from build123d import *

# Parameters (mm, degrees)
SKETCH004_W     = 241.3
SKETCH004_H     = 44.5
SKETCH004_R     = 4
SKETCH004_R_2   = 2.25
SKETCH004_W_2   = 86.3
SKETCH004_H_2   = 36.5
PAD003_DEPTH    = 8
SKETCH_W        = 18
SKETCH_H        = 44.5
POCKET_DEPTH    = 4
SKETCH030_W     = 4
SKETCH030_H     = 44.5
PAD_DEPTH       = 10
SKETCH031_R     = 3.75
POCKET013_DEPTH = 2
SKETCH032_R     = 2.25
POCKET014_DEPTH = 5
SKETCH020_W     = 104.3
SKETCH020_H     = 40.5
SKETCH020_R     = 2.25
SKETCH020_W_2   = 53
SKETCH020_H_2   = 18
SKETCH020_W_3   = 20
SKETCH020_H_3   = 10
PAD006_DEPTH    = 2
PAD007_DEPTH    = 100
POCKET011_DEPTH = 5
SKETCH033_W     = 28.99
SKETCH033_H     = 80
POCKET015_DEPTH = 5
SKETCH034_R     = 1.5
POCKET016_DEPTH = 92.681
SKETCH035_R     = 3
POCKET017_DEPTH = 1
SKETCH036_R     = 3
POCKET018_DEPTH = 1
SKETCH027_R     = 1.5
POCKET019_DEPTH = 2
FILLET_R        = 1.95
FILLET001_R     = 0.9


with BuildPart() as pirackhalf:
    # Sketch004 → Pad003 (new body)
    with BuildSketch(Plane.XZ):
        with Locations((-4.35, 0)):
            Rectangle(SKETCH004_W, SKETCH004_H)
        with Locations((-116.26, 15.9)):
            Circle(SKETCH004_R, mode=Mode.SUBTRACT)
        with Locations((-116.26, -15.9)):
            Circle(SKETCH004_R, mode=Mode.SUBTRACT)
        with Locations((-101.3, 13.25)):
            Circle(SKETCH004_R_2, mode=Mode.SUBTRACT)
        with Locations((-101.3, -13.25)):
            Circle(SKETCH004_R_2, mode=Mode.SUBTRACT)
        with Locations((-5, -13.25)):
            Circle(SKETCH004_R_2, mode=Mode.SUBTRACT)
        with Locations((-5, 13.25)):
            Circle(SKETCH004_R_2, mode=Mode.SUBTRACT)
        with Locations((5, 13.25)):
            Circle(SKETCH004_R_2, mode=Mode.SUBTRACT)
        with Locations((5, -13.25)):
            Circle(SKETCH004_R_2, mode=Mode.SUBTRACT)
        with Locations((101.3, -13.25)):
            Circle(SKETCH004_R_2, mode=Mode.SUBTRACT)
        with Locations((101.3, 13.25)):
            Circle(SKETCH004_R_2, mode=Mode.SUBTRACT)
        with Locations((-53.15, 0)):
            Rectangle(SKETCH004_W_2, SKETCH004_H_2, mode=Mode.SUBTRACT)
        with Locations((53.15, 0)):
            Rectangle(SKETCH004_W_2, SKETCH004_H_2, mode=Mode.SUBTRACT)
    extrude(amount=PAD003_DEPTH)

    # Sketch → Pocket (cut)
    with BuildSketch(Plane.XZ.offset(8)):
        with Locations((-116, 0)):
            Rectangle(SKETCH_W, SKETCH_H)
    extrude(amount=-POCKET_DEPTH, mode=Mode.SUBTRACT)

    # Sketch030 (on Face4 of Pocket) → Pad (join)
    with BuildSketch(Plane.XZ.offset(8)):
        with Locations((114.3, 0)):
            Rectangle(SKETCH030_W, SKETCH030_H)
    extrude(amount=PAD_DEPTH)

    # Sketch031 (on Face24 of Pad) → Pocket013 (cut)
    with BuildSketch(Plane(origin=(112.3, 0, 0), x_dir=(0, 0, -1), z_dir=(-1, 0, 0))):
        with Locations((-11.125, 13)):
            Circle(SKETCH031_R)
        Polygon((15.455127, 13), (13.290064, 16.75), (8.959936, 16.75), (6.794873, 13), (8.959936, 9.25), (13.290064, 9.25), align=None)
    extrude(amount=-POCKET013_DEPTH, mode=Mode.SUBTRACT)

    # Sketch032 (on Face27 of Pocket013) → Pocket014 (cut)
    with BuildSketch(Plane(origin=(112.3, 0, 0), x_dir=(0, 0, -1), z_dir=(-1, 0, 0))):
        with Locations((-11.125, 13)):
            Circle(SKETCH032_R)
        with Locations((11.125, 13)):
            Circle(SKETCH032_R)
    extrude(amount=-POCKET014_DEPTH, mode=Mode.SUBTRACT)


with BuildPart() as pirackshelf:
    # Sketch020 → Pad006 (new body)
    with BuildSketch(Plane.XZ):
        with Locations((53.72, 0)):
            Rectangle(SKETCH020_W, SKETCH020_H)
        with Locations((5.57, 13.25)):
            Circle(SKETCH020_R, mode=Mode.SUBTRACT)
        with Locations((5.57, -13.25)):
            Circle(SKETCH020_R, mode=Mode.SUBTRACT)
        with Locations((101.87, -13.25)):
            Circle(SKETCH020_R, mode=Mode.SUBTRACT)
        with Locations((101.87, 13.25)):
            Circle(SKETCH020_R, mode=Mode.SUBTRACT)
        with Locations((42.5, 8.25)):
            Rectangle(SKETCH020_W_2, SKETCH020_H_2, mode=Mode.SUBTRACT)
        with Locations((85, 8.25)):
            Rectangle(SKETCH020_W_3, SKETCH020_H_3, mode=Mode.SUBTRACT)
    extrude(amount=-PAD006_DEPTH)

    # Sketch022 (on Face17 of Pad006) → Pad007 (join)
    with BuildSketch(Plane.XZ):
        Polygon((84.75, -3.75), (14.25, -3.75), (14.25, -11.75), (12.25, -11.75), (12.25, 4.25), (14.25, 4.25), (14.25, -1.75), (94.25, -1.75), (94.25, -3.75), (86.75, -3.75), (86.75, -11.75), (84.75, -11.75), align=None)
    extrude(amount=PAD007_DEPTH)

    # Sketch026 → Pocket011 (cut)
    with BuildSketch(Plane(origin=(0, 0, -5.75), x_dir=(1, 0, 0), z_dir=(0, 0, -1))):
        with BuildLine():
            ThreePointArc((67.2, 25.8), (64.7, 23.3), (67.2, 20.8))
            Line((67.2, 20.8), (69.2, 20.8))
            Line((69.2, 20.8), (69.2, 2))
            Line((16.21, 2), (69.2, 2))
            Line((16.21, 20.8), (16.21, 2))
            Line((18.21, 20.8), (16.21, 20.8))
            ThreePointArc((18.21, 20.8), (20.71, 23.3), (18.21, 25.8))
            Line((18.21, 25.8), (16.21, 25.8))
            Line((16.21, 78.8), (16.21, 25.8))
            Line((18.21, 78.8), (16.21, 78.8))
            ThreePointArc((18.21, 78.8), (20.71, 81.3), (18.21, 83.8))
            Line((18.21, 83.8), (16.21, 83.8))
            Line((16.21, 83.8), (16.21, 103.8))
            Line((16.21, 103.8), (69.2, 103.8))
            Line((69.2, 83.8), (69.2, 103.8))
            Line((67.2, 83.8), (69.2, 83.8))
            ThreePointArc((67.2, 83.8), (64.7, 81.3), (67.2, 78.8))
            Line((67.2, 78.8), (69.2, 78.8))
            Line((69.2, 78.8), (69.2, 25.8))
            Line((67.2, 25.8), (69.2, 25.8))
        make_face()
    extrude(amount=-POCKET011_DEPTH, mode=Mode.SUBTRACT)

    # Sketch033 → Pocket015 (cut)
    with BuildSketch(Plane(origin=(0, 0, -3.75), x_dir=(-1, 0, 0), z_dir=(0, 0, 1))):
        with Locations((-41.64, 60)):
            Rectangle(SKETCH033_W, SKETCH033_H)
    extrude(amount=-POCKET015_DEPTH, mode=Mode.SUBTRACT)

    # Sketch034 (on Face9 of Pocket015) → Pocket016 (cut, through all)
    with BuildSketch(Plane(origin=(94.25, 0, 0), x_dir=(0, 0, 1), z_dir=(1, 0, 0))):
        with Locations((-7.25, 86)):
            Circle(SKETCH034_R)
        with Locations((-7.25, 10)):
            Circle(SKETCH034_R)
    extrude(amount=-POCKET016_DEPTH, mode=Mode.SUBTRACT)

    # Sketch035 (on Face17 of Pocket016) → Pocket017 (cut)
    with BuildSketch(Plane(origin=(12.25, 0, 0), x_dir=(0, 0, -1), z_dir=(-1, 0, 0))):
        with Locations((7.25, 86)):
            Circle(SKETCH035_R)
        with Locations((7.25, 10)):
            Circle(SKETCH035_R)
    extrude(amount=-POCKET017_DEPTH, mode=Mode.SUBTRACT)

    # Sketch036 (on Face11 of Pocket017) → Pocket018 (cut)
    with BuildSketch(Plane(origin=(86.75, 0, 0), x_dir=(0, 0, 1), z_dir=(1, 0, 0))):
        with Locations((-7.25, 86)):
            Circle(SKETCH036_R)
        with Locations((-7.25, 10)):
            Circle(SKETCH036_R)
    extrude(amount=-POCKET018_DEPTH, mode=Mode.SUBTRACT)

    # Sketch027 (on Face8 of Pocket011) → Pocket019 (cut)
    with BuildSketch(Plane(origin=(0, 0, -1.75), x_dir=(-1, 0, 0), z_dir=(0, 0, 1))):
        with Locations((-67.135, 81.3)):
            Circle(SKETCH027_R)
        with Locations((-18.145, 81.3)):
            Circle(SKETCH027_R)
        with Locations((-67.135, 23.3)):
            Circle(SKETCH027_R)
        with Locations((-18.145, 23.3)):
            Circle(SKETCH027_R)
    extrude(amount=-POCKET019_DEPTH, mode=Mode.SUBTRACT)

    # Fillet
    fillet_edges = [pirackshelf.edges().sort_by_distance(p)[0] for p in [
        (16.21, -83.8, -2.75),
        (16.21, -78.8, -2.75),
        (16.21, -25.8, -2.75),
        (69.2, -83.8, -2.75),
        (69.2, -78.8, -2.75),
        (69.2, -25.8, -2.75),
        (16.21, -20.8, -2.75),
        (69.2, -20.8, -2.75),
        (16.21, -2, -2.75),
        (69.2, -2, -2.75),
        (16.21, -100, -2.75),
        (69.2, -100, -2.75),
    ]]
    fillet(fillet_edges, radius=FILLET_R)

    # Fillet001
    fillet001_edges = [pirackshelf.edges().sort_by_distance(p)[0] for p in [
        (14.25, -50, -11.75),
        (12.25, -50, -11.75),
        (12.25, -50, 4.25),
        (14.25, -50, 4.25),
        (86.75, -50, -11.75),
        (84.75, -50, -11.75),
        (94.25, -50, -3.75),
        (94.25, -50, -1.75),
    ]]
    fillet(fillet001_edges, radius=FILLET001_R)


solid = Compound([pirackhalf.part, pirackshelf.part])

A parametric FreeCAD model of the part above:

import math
import FreeCAD as App
import Part
import Sketcher
from FreeCAD import Vector
Q = App.Units.Quantity


def edges_at(feature, points):
    """Names of the edges that pass closest to the given points."""
    edges = feature.Shape.Edges
    near = lambda p: min(range(len(edges)), key=lambda i: edges[i].distToShape(Part.Vertex(*p))[0])
    return sorted({f"Edge{near(p) + 1}" for p in points})


def add_polygon(sketch, points):
    """Adds a closed chain of lines whose ends are joined by coincident constraints."""
    first, n = sketch.GeometryCount, len(points)
    for a, b in zip(points, points[1:] + points[:1]):
        sketch.addGeometry(Part.LineSegment(App.Vector(*a, 0), App.Vector(*b, 0)), False)
    for i in range(n):
        sketch.addConstraint(Sketcher.Constraint("Coincident", first + i, 2, first + (i + 1) % n, 1))

doc = App.newDocument("Part")
body = doc.addObject("PartDesign::Body", "Body")

sketch1 = body.newObject("Sketcher::SketchObject", "Sketch")
sketch1.AttachmentSupport = (doc.getObject("XZ_Plane"), [""])
sketch1.MapMode = "FlatFace"
add_polygon(sketch1, [(-125, 22.2), (-125, -22.2), (116.3, -22.2), (116.3, 22.2)])
sketch1.addGeometry(Part.Circle(Vector(-116.3, -15.9, 0), Vector(0, 0, 1), 4), False)
sketch1.addGeometry(Part.Circle(Vector(-101.3, -13.2, 0), Vector(0, 0, 1), 2.2), False)
sketch1.addGeometry(Part.Circle(Vector(-5, -13.2, 0), Vector(0, 0, 1), 2.2), False)
sketch1.addGeometry(Part.Circle(Vector(5, -13.2, 0), Vector(0, 0, 1), 2.2), False)
sketch1.addGeometry(Part.Circle(Vector(101.3, -13.2, 0), Vector(0, 0, 1), 2.2), False)
add_polygon(sketch1, [(-10, -18.2), (-96.3, -18.2), (-96.3, 18.2), (-10, 18.2)])
sketch1.addGeometry(Part.Circle(Vector(-101.3, 13.2, 0), Vector(0, 0, 1), 2.2), False)
sketch1.addGeometry(Part.Circle(Vector(-116.3, 15.9, 0), Vector(0, 0, 1), 4), False)
add_polygon(sketch1, [(96.3, -18.2), (10, -18.2), (10, 18.2), (96.3, 18.2)])
sketch1.addGeometry(Part.Circle(Vector(-5, 13.2, 0), Vector(0, 0, 1), 2.2), False)
sketch1.addGeometry(Part.Circle(Vector(5, 13.2, 0), Vector(0, 0, 1), 2.2), False)
sketch1.addGeometry(Part.Circle(Vector(101.3, 13.2, 0), Vector(0, 0, 1), 2.2), False)
sketch1.addConstraint(Sketcher.Constraint("Vertical", 0))
sketch1.addConstraint(Sketcher.Constraint("Horizontal", 1))
sketch1.addConstraint(Sketcher.Constraint("Vertical", 2))
sketch1.addConstraint(Sketcher.Constraint("Horizontal", 3))
sketch1.addConstraint(Sketcher.Constraint("Horizontal", 9))
sketch1.addConstraint(Sketcher.Constraint("Vertical", 10))
sketch1.addConstraint(Sketcher.Constraint("Horizontal", 11))
sketch1.addConstraint(Sketcher.Constraint("Vertical", 12))
sketch1.addConstraint(Sketcher.Constraint("Horizontal", 15))
sketch1.addConstraint(Sketcher.Constraint("Vertical", 16))
sketch1.addConstraint(Sketcher.Constraint("Horizontal", 17))
sketch1.addConstraint(Sketcher.Constraint("Vertical", 18))
sketch1.addConstraint(Sketcher.Constraint("Equal", 5, 6))
sketch1.addConstraint(Sketcher.Constraint("Equal", 6, 7))
sketch1.addConstraint(Sketcher.Constraint("Equal", 7, 8))
sketch1.addConstraint(Sketcher.Constraint("Equal", 8, 13))
sketch1.addConstraint(Sketcher.Constraint("Equal", 4, 14))
sketch1.addConstraint(Sketcher.Constraint("Equal", 13, 19))
sketch1.addConstraint(Sketcher.Constraint("Equal", 19, 20))
sketch1.addConstraint(Sketcher.Constraint("Equal", 20, 21))
sketch1.addConstraint(Sketcher.Constraint("Symmetric", 8, 3, 13, 3, -1, 1))
sketch1.addConstraint(Sketcher.Constraint("Symmetric", 7, 3, 19, 3, -1, 1))
sketch1.addConstraint(Sketcher.Constraint("Symmetric", 6, 3, 20, 3, -1, 1))
sketch1.addConstraint(Sketcher.Constraint("Symmetric", 5, 3, 21, 3, -1, 1))
sketch1.addConstraint(Sketcher.Constraint("Symmetric", 11, 2, 15, 2, -1, 1))
sketch1.addConstraint(Sketcher.Constraint("Symmetric", 9, 2, 17, 2, -1, 1))
sketch1.addConstraint(Sketcher.Constraint("Symmetric", 6, 3, 7, 3, -2))
sketch1.addConstraint(Sketcher.Constraint("Symmetric", 5, 3, 8, 3, -2))
sketch1.addConstraint(Sketcher.Constraint("Symmetric", 4, 3, 14, 3, -1))
sketch1.addConstraint(Sketcher.Constraint("Horizontal", 5, 3, 6, 3))
sketch1.addConstraint(Sketcher.Constraint("Horizontal", 12, 2, 15, 2))
sketch1.addConstraint(Sketcher.Constraint("Diameter", 4, 8.0))
sketch1.addConstraint(Sketcher.Constraint("Diameter", 5, 4.5))
sketch1.addConstraint(Sketcher.Constraint("DistanceX", 1, 1, 1, 2, 241.3))
sketch1.addConstraint(Sketcher.Constraint("DistanceX", 9, 2, 9, 1, 86.3))
sketch1.addConstraint(Sketcher.Constraint("DistanceY", 0, 2, 0, 1, 44.5))
sketch1.addConstraint(Sketcher.Constraint("DistanceY", 10, 1, 10, 2, 36.5))
sketch1.addConstraint(Sketcher.Constraint("DistanceX", 6, 3, -1, 1, 5.0))
sketch1.addConstraint(Sketcher.Constraint("DistanceX", 0, 2, -1, 1, 125.0))
sketch1.addConstraint(Sketcher.Constraint("DistanceX", 11, 2, -1, 1, 10.0))
sketch1.addConstraint(Sketcher.Constraint("DistanceY", 0, 2, 5, 3, 9.0))
sketch1.addConstraint(Sketcher.Constraint("DistanceX", 8, 3, 1, 2, 15.0))
sketch1.addConstraint(Sketcher.Constraint("DistanceY", 21, 3, 2, 2, 9.0))
sketch1.addConstraint(Sketcher.Constraint("DistanceY", 4, 3, -1, 1, 15.9))
sketch1.addConstraint(Sketcher.Constraint("DistanceX", 4, 3, -1, 1, 116.26))
pad1 = body.newObject("PartDesign::Pad", "Pad")
pad1.Profile = sketch1
pad1.Length = 8

sketch2 = body.newObject("Sketcher::SketchObject", "Sketch001")
sketch2.AttachmentSupport = (doc.getObject("XZ_Plane"), [""])
sketch2.MapMode = "FlatFace"
sketch2.AttachmentOffset = App.Placement(Vector(0, 0, 8), App.Rotation())
add_polygon(sketch2, [(-125, 22), (-125, -22), (-107, -22), (-107, 22)])
sketch2.addConstraint(Sketcher.Constraint("Vertical", 0))
sketch2.addConstraint(Sketcher.Constraint("Horizontal", 1))
sketch2.addConstraint(Sketcher.Constraint("Vertical", 2))
sketch2.addConstraint(Sketcher.Constraint("Horizontal", 3))
sketch2.addConstraint(Sketcher.Constraint("DistanceX", 1, 1, 1, 2, 18.0))
sketch2.addConstraint(Sketcher.Constraint("DistanceY", 0, 2, 0, 1, 44.5))
sketch2.addConstraint(Sketcher.Constraint("DistanceX", 0, 2, -1, 1, 125.0))
sketch2.addConstraint(Sketcher.Constraint("DistanceY", 0, 2, -1, 1, 22.25))
pocket1 = body.newObject("PartDesign::Pocket", "Pocket")
pocket1.Profile = sketch2
pocket1.Length = 4

sketch3 = body.newObject("Sketcher::SketchObject", "Sketch002")
sketch3.AttachmentSupport = (doc.getObject("XZ_Plane"), [""])
sketch3.MapMode = "FlatFace"
sketch3.AttachmentOffset = App.Placement(Vector(0, 0, 8), App.Rotation())
add_polygon(sketch3, [(112.3, 22.2), (112.3, -22.2), (116.3, -22.2), (116.3, 22.2)])
sketch3.addConstraint(Sketcher.Constraint("Vertical", 0))
sketch3.addConstraint(Sketcher.Constraint("Horizontal", 1))
sketch3.addConstraint(Sketcher.Constraint("Vertical", 2))
sketch3.addConstraint(Sketcher.Constraint("Horizontal", 3))
sketch3.addConstraint(Sketcher.Constraint("DistanceX", 1, 1, 1, 2, 4.0))
sketch3.addConstraint(Sketcher.Constraint("DistanceY", 0, 2, 0, 1, 44.5))
sketch3.addConstraint(Sketcher.Constraint("DistanceX", -1, 1, 0, 2, 112.3))
sketch3.addConstraint(Sketcher.Constraint("DistanceY", 0, 2, -1, 1, 22.25))
pad2 = body.newObject("PartDesign::Pad", "Pad001")
pad2.Profile = sketch3
pad2.Length = 10

sketch4 = body.newObject("Sketcher::SketchObject", "Sketch003")
sketch4.AttachmentSupport = (doc.getObject("YZ_Plane"), [""])
sketch4.MapMode = "FlatFace"
sketch4.AttachmentOffset = App.Placement(Vector(0, 0, 112.3), App.Rotation())
sketch4.addGeometry(Part.Circle(Vector(-13, 11.1, 0), Vector(0, 0, 1), 3.8), False)
add_polygon(sketch4, [(-13, -15.5), (-16.8, -13.3), (-16.8, -9), (-13, -6.8), (-9.2, -9), (-9.2, -13.3)])
sketch4.addConstraint(Sketcher.Constraint("Vertical", 2))
sketch4.addConstraint(Sketcher.Constraint("Vertical", 5))
sketch4.addConstraint(Sketcher.Constraint("Parallel", 1, 4))
sketch4.addConstraint(Sketcher.Constraint("Parallel", 3, 6))
sketch4.addConstraint(Sketcher.Constraint("Horizontal", 2, 2, 4, 2))
sketch4.addConstraint(Sketcher.Constraint("Horizontal", 1, 2, 5, 2))
sketch4.addConstraint(Sketcher.Constraint("Vertical", 0, 3, 3, 2))
sketch4.addConstraint(Sketcher.Constraint("Vertical", 3, 2, 6, 2))
sketch4.addConstraint(Sketcher.Constraint("Diameter", 0, 7.5))
sketch4.addConstraint(Sketcher.Constraint("Angle", 1, Q("150.000006 deg")))
sketch4.addConstraint(Sketcher.Constraint("DistanceX", 0, 3, -1, 1, 13.0))
sketch4.addConstraint(Sketcher.Constraint("DistanceX", 2, 2, 4, 2, 7.5))
sketch4.addConstraint(Sketcher.Constraint("DistanceY", -1, 1, 0, 3, 11.125))
sketch4.addConstraint(Sketcher.Constraint("DistanceY", 2, 1, 2, 2, 4.330128))
sketch4.addConstraint(Sketcher.Constraint("DistanceY", 1, 2, -1, 1, 13.290064))
pocket2 = body.newObject("PartDesign::Pocket", "Pocket001")
pocket2.Profile = sketch4
pocket2.Length = 2
pocket2.Reversed = True

sketch5 = body.newObject("Sketcher::SketchObject", "Sketch004")
sketch5.AttachmentSupport = (doc.getObject("YZ_Plane"), [""])
sketch5.MapMode = "FlatFace"
sketch5.AttachmentOffset = App.Placement(Vector(0, 0, 112.3), App.Rotation())
sketch5.addGeometry(Part.Circle(Vector(-13, 11.1, 0), Vector(0, 0, 1), 2.2), False)
sketch5.addGeometry(Part.Circle(Vector(-13, -11.1, 0), Vector(0, 0, 1), 2.2), False)
sketch5.addConstraint(Sketcher.Constraint("Equal", 0, 1))
sketch5.addConstraint(Sketcher.Constraint("Symmetric", 0, 3, 1, 3, -1))
sketch5.addConstraint(Sketcher.Constraint("Diameter", 0, 4.5))
sketch5.addConstraint(Sketcher.Constraint("DistanceX", 0, 3, -1, 1, 13.0))
sketch5.addConstraint(Sketcher.Constraint("DistanceY", 1, 3, 0, 3, 22.25))
pocket3 = body.newObject("PartDesign::Pocket", "Pocket002")
pocket3.Profile = sketch5
pocket3.Length = 5
pocket3.Reversed = True
body2 = doc.addObject("PartDesign::Body", "Body001")

sketch6 = body2.newObject("Sketcher::SketchObject", "Sketch005")
sketch6.AttachmentSupport = (doc.getObject("XZ_Plane001"), [""])
sketch6.MapMode = "FlatFace"
add_polygon(sketch6, [(1.6, 20.2), (1.6, -20.2), (105.9, -20.2), (105.9, 20.2)])
sketch6.addGeometry(Part.Circle(Vector(5.6, -13.2, 0), Vector(0, 0, 1), 2.2), False)
sketch6.addGeometry(Part.Circle(Vector(101.9, -13.2, 0), Vector(0, 0, 1), 2.2), False)
add_polygon(sketch6, [(69, -0.8), (16, -0.8), (16, 17.2), (69, 17.2)])
sketch6.addGeometry(Part.Circle(Vector(5.6, 13.2, 0), Vector(0, 0, 1), 2.2), False)
add_polygon(sketch6, [(95, 3.2), (75, 3.2), (75, 13.2), (95, 13.2)])
sketch6.addGeometry(Part.Circle(Vector(101.9, 13.2, 0), Vector(0, 0, 1), 2.2), False)
sketch6.addConstraint(Sketcher.Constraint("Vertical", 0))
sketch6.addConstraint(Sketcher.Constraint("Horizontal", 1))
sketch6.addConstraint(Sketcher.Constraint("Vertical", 2))
sketch6.addConstraint(Sketcher.Constraint("Horizontal", 3))
sketch6.addConstraint(Sketcher.Constraint("Horizontal", 6))
sketch6.addConstraint(Sketcher.Constraint("Vertical", 7))
sketch6.addConstraint(Sketcher.Constraint("Horizontal", 8))
sketch6.addConstraint(Sketcher.Constraint("Vertical", 9))
sketch6.addConstraint(Sketcher.Constraint("Horizontal", 11))
sketch6.addConstraint(Sketcher.Constraint("Vertical", 12))
sketch6.addConstraint(Sketcher.Constraint("Horizontal", 13))
sketch6.addConstraint(Sketcher.Constraint("Vertical", 14))
sketch6.addConstraint(Sketcher.Constraint("Equal", 4, 5))
sketch6.addConstraint(Sketcher.Constraint("Equal", 5, 10))
sketch6.addConstraint(Sketcher.Constraint("Equal", 10, 15))
sketch6.addConstraint(Sketcher.Constraint("Symmetric", 4, 3, 10, 3, -1))
sketch6.addConstraint(Sketcher.Constraint("Symmetric", 5, 3, 15, 3, -1))
sketch6.addConstraint(Sketcher.Constraint("Horizontal", 4, 3, 5, 3))
sketch6.addConstraint(Sketcher.Constraint("Horizontal", 15, 3, 12, 2))
sketch6.addConstraint(Sketcher.Constraint("Diameter", 4, 4.5))
sketch6.addConstraint(Sketcher.Constraint("DistanceX", 6, 2, 6, 1, 53.0))
sketch6.addConstraint(Sketcher.Constraint("DistanceX", 11, 2, 11, 1, 20.0))
sketch6.addConstraint(Sketcher.Constraint("DistanceY", 7, 1, 7, 2, 18.0))
sketch6.addConstraint(Sketcher.Constraint("DistanceY", 12, 1, 12, 2, 10.0))
sketch6.addConstraint(Sketcher.Constraint("DistanceX", 1, 1, 1, 2, 104.3))
sketch6.addConstraint(Sketcher.Constraint("DistanceY", 0, 2, 0, 1, 40.5))
sketch6.addConstraint(Sketcher.Constraint("DistanceX", -1, 1, 6, 2, 16.0))
sketch6.addConstraint(Sketcher.Constraint("DistanceX", -1, 1, 11, 2, 75.0))
sketch6.addConstraint(Sketcher.Constraint("DistanceX", 0, 2, 4, 3, 4.0))
sketch6.addConstraint(Sketcher.Constraint("DistanceY", 0, 2, 4, 3, 7.0))
sketch6.addConstraint(Sketcher.Constraint("DistanceX", 5, 3, 1, 2, 4.0))
sketch6.addConstraint(Sketcher.Constraint("DistanceY", 15, 3, 2, 2, 7.0))
sketch6.addConstraint(Sketcher.Constraint("DistanceY", 6, 2, 10, 3, 14.0))
sketch6.addConstraint(Sketcher.Constraint("DistanceX", -1, 1, 4, 3, 5.57))
pad3 = body2.newObject("PartDesign::Pad", "Pad002")
pad3.Profile = sketch6
pad3.Length = 2
pad3.Reversed = True

sketch7 = body2.newObject("Sketcher::SketchObject", "Sketch006")
sketch7.AttachmentSupport = (doc.getObject("XZ_Plane001"), [""])
sketch7.MapMode = "FlatFace"
add_polygon(sketch7, [(14.2, -3.8), (84.8, -3.8), (84.8, -11.8), (86.8, -11.8), (86.8, -3.8), (94.2, -3.8), (94.2, -1.8), (14.2, -1.8), (14.2, 4.2), (12.2, 4.2), (12.2, -11.8), (14.2, -11.8)])
sketch7.addConstraint(Sketcher.Constraint("Horizontal", 0))
sketch7.addConstraint(Sketcher.Constraint("Vertical", 1))
sketch7.addConstraint(Sketcher.Constraint("Horizontal", 2))
sketch7.addConstraint(Sketcher.Constraint("Vertical", 3))
sketch7.addConstraint(Sketcher.Constraint("Horizontal", 4))
sketch7.addConstraint(Sketcher.Constraint("Vertical", 5))
sketch7.addConstraint(Sketcher.Constraint("Horizontal", 6))
sketch7.addConstraint(Sketcher.Constraint("Vertical", 7))
sketch7.addConstraint(Sketcher.Constraint("Horizontal", 8))
sketch7.addConstraint(Sketcher.Constraint("Vertical", 9))
sketch7.addConstraint(Sketcher.Constraint("Horizontal", 10))
sketch7.addConstraint(Sketcher.Constraint("Vertical", 11))
sketch7.addConstraint(Sketcher.Constraint("Horizontal", 0, 2, 3, 2))
sketch7.addConstraint(Sketcher.Constraint("Horizontal", 2, 2, 9, 2))
sketch7.addConstraint(Sketcher.Constraint("Vertical", 7, 2, 10, 2))
sketch7.addConstraint(Sketcher.Constraint("Equal", 2, 8))
sketch7.addConstraint(Sketcher.Constraint("Equal", 10, 5))
sketch7.addConstraint(Sketcher.Constraint("DistanceX", 2, 1, 2, 2, 2.0))
sketch7.addConstraint(Sketcher.Constraint("DistanceX", 6, 2, 6, 1, 80.0))
sketch7.addConstraint(Sketcher.Constraint("DistanceY", 1, 2, 1, 1, 8.0))
sketch7.addConstraint(Sketcher.Constraint("DistanceY", 7, 1, 7, 2, 6.0))
sketch7.addConstraint(Sketcher.Constraint("DistanceX", 0, 1, 0, 2, 70.5))
sketch7.addConstraint(Sketcher.Constraint("DistanceX", -1, 1, 0, 2, 84.75))
sketch7.addConstraint(Sketcher.Constraint("DistanceY", 0, 2, -1, 1, 3.75))
pad4 = body2.newObject("PartDesign::Pad", "Pad003")
pad4.Profile = sketch7
pad4.Length = 100

sketch8 = body2.newObject("Sketcher::SketchObject", "Sketch007")
sketch8.AttachmentSupport = (doc.getObject("XY_Plane001"), [""])
sketch8.MapMode = "FlatFace"
sketch8.AttachmentOffset = App.Placement(Vector(0, 0, -5.75), App.Rotation())
sketch8.addGeometry(Part.ArcOfCircle(Part.Circle(Vector(67.2, -23.3, 0), Vector(0, 0, 1), 2.5), math.radians(90), math.radians(270)), False)
sketch8.addGeometry(Part.LineSegment(Vector(67.2, -25.8, 0), Vector(69.2, -25.8, 0)), False)
sketch8.addGeometry(Part.LineSegment(Vector(69.2, -25.8, 0), Vector(69.2, -78.8, 0)), False)
sketch8.addGeometry(Part.LineSegment(Vector(69.2, -78.8, 0), Vector(67.2, -78.8, 0)), False)
sketch8.addGeometry(Part.ArcOfCircle(Part.Circle(Vector(67.2, -81.3, 0), Vector(0, 0, 1), 2.5), math.radians(90), math.radians(270)), False)
sketch8.addGeometry(Part.LineSegment(Vector(67.2, -83.8, 0), Vector(69.2, -83.8, 0)), False)
sketch8.addGeometry(Part.LineSegment(Vector(69.2, -83.8, 0), Vector(69.2, -103.8, 0)), False)
sketch8.addGeometry(Part.LineSegment(Vector(69.2, -103.8, 0), Vector(16.2, -103.8, 0)), False)
sketch8.addGeometry(Part.LineSegment(Vector(16.2, -103.8, 0), Vector(16.2, -83.8, 0)), False)
sketch8.addGeometry(Part.LineSegment(Vector(16.2, -83.8, 0), Vector(18.2, -83.8, 0)), False)
sketch8.addGeometry(Part.ArcOfCircle(Part.Circle(Vector(18.2, -81.3, 0), Vector(0, 0, 1), 2.5), math.radians(-90), math.radians(90)), False)
sketch8.addGeometry(Part.LineSegment(Vector(18.2, -78.8, 0), Vector(16.2, -78.8, 0)), False)
sketch8.addGeometry(Part.LineSegment(Vector(16.2, -78.8, 0), Vector(16.2, -25.8, 0)), False)
sketch8.addGeometry(Part.LineSegment(Vector(16.2, -25.8, 0), Vector(18.2, -25.8, 0)), False)
sketch8.addGeometry(Part.ArcOfCircle(Part.Circle(Vector(18.2, -23.3, 0), Vector(0, 0, 1), 2.5), math.radians(-90), math.radians(90)), False)
sketch8.addGeometry(Part.LineSegment(Vector(18.2, -20.8, 0), Vector(16.2, -20.8, 0)), False)
sketch8.addGeometry(Part.LineSegment(Vector(16.2, -20.8, 0), Vector(16.2, -2, 0)), False)
sketch8.addGeometry(Part.LineSegment(Vector(16.2, -2, 0), Vector(69.2, -2, 0)), False)
sketch8.addGeometry(Part.LineSegment(Vector(69.2, -2, 0), Vector(69.2, -20.8, 0)), False)
sketch8.addGeometry(Part.LineSegment(Vector(69.2, -20.8, 0), Vector(67.2, -20.8, 0)), False)
sketch8.addConstraint(Sketcher.Constraint("Tangent", 0, 2, 1, 1))
sketch8.addConstraint(Sketcher.Constraint("Coincident", 1, 2, 2, 1))
sketch8.addConstraint(Sketcher.Constraint("Coincident", 2, 2, 3, 1))
sketch8.addConstraint(Sketcher.Constraint("Tangent", 3, 2, 4, 1))
sketch8.addConstraint(Sketcher.Constraint("Tangent", 4, 2, 5, 1))
sketch8.addConstraint(Sketcher.Constraint("Coincident", 5, 2, 6, 1))
sketch8.addConstraint(Sketcher.Constraint("Coincident", 6, 2, 7, 1))
sketch8.addConstraint(Sketcher.Constraint("Coincident", 7, 2, 8, 1))
sketch8.addConstraint(Sketcher.Constraint("Coincident", 8, 2, 9, 1))
sketch8.addConstraint(Sketcher.Constraint("Tangent", 9, 2, 10, 1))
sketch8.addConstraint(Sketcher.Constraint("Tangent", 10, 2, 11, 1))
sketch8.addConstraint(Sketcher.Constraint("Coincident", 11, 2, 12, 1))
sketch8.addConstraint(Sketcher.Constraint("Coincident", 12, 2, 13, 1))
sketch8.addConstraint(Sketcher.Constraint("Tangent", 13, 2, 14, 1))
sketch8.addConstraint(Sketcher.Constraint("Tangent", 14, 2, 15, 1))
sketch8.addConstraint(Sketcher.Constraint("Coincident", 15, 2, 16, 1))
sketch8.addConstraint(Sketcher.Constraint("Coincident", 16, 2, 17, 1))
sketch8.addConstraint(Sketcher.Constraint("Coincident", 17, 2, 18, 1))
sketch8.addConstraint(Sketcher.Constraint("Coincident", 18, 2, 19, 1))
sketch8.addConstraint(Sketcher.Constraint("Tangent", 19, 2, 0, 1))
sketch8.addConstraint(Sketcher.Constraint("Horizontal", 1))
sketch8.addConstraint(Sketcher.Constraint("Vertical", 2))
sketch8.addConstraint(Sketcher.Constraint("Horizontal", 3))
sketch8.addConstraint(Sketcher.Constraint("Horizontal", 5))
sketch8.addConstraint(Sketcher.Constraint("Vertical", 6))
sketch8.addConstraint(Sketcher.Constraint("Horizontal", 7))
sketch8.addConstraint(Sketcher.Constraint("Vertical", 8))
sketch8.addConstraint(Sketcher.Constraint("Horizontal", 9))
sketch8.addConstraint(Sketcher.Constraint("Horizontal", 11))
sketch8.addConstraint(Sketcher.Constraint("Vertical", 12))
sketch8.addConstraint(Sketcher.Constraint("Horizontal", 13))
sketch8.addConstraint(Sketcher.Constraint("Horizontal", 15))
sketch8.addConstraint(Sketcher.Constraint("Vertical", 16))
sketch8.addConstraint(Sketcher.Constraint("Horizontal", 17))
sketch8.addConstraint(Sketcher.Constraint("Vertical", 18))
sketch8.addConstraint(Sketcher.Constraint("Horizontal", 19))
sketch8.addConstraint(Sketcher.Constraint("Equal", 0, 4))
sketch8.addConstraint(Sketcher.Constraint("Equal", 4, 10))
sketch8.addConstraint(Sketcher.Constraint("Equal", 10, 14))
sketch8.addConstraint(Sketcher.Constraint("Horizontal", 4, 3, 10, 3))
sketch8.addConstraint(Sketcher.Constraint("Horizontal", 0, 3, 14, 3))
sketch8.addConstraint(Sketcher.Constraint("Vertical", 0, 3, 4, 3))
sketch8.addConstraint(Sketcher.Constraint("Vertical", 10, 3, 14, 3))
sketch8.addConstraint(Sketcher.Constraint("Vertical", 2, 2, 5, 2))
sketch8.addConstraint(Sketcher.Constraint("Vertical", 8, 2, 11, 2))
sketch8.addConstraint(Sketcher.Constraint("Vertical", 12, 2, 15, 2))
sketch8.addConstraint(Sketcher.Constraint("Vertical", 6, 2, 17, 2))
sketch8.addConstraint(Sketcher.Constraint("Equal", 5, 9))
sketch8.addConstraint(Sketcher.Constraint("Radius", 0, 2.5))
sketch8.addConstraint(Sketcher.Constraint("DistanceX", 1, 1, 1, 2, 2.0))
sketch8.addConstraint(Sketcher.Constraint("DistanceY", 2, 2, 2, 1, 53.0))
sketch8.addConstraint(Sketcher.Constraint("DistanceY", 6, 2, 6, 1, 20.0))
sketch8.addConstraint(Sketcher.Constraint("DistanceY", 16, 1, 16, 2, 18.8))
sketch8.addConstraint(Sketcher.Constraint("DistanceY", 16, 2, -1, 1, 2.0))
sketch8.addConstraint(Sketcher.Constraint("DistanceX", 7, 2, 7, 1, 52.99))
sketch8.addConstraint(Sketcher.Constraint("DistanceX", -1, 1, 0, 3, 67.2))
pocket4 = body2.newObject("PartDesign::Pocket", "Pocket003")
pocket4.Profile = sketch8
pocket4.Length = 5
pocket4.Reversed = True

sketch9 = body2.newObject("Sketcher::SketchObject", "Sketch008")
sketch9.AttachmentSupport = (doc.getObject("XY_Plane001"), [""])
sketch9.MapMode = "FlatFace"
sketch9.AttachmentOffset = App.Placement(Vector(0, 0, -3.75), App.Rotation())
add_polygon(sketch9, [(56, -100), (56, -20), (27, -20), (27, -100)])
sketch9.addConstraint(Sketcher.Constraint("Vertical", 0))
sketch9.addConstraint(Sketcher.Constraint("Horizontal", 1))
sketch9.addConstraint(Sketcher.Constraint("Vertical", 2))
sketch9.addConstraint(Sketcher.Constraint("Horizontal", 3))
sketch9.addConstraint(Sketcher.Constraint("DistanceY", 0, 1, 0, 2, 80.0))
sketch9.addConstraint(Sketcher.Constraint("DistanceY", 0, 2, -1, 1, 20.0))
sketch9.addConstraint(Sketcher.Constraint("DistanceX", 1, 2, 1, 1, 28.99))
sketch9.addConstraint(Sketcher.Constraint("DistanceX", -1, 1, 0, 2, 56.135))
pocket5 = body2.newObject("PartDesign::Pocket", "Pocket004")
pocket5.Profile = sketch9
pocket5.Length = 5

sketch10 = body2.newObject("Sketcher::SketchObject", "Sketch009")
sketch10.AttachmentSupport = (doc.getObject("YZ_Plane001"), [""])
sketch10.MapMode = "FlatFace"
sketch10.AttachmentOffset = App.Placement(Vector(0, 0, 94.25), App.Rotation())
sketch10.addGeometry(Part.Circle(Vector(-86, -7.2, 0), Vector(0, 0, 1), 1.5), False)
sketch10.addGeometry(Part.Circle(Vector(-10, -7.2, 0), Vector(0, 0, 1), 1.5), False)
sketch10.addConstraint(Sketcher.Constraint("Equal", 0, 1))
sketch10.addConstraint(Sketcher.Constraint("Horizontal", 0, 3, 1, 3))
sketch10.addConstraint(Sketcher.Constraint("Diameter", 0, 3.0))
sketch10.addConstraint(Sketcher.Constraint("DistanceX", 0, 3, -1, 1, 86.0))
sketch10.addConstraint(Sketcher.Constraint("DistanceX", 1, 3, -1, 1, 10.0))
sketch10.addConstraint(Sketcher.Constraint("DistanceY", 0, 3, -1, 1, 7.25))
pocket6 = body2.newObject("PartDesign::Pocket", "Pocket005")
pocket6.Profile = sketch10
pocket6.Type = "ThroughAll"

sketch11 = body2.newObject("Sketcher::SketchObject", "Sketch010")
sketch11.AttachmentSupport = (doc.getObject("YZ_Plane001"), [""])
sketch11.MapMode = "FlatFace"
sketch11.AttachmentOffset = App.Placement(Vector(0, 0, 12.25), App.Rotation())
sketch11.addGeometry(Part.Circle(Vector(-86, -7.2, 0), Vector(0, 0, 1), 3), False)
sketch11.addGeometry(Part.Circle(Vector(-10, -7.2, 0), Vector(0, 0, 1), 3), False)
sketch11.addConstraint(Sketcher.Constraint("Equal", 0, 1))
sketch11.addConstraint(Sketcher.Constraint("Horizontal", 0, 3, 1, 3))
sketch11.addConstraint(Sketcher.Constraint("Diameter", 0, 6.0))
sketch11.addConstraint(Sketcher.Constraint("DistanceX", 0, 3, -1, 1, 86.0))
sketch11.addConstraint(Sketcher.Constraint("DistanceX", 1, 3, -1, 1, 10.0))
sketch11.addConstraint(Sketcher.Constraint("DistanceY", 0, 3, -1, 1, 7.25))
pocket7 = body2.newObject("PartDesign::Pocket", "Pocket006")
pocket7.Profile = sketch11
pocket7.Length = 1
pocket7.Reversed = True

sketch12 = body2.newObject("Sketcher::SketchObject", "Sketch011")
sketch12.AttachmentSupport = (doc.getObject("YZ_Plane001"), [""])
sketch12.MapMode = "FlatFace"
sketch12.AttachmentOffset = App.Placement(Vector(0, 0, 86.75), App.Rotation())
sketch12.addGeometry(Part.Circle(Vector(-86, -7.2, 0), Vector(0, 0, 1), 3), False)
sketch12.addGeometry(Part.Circle(Vector(-10, -7.2, 0), Vector(0, 0, 1), 3), False)
sketch12.addConstraint(Sketcher.Constraint("Equal", 0, 1))
sketch12.addConstraint(Sketcher.Constraint("Horizontal", 0, 3, 1, 3))
sketch12.addConstraint(Sketcher.Constraint("Diameter", 0, 6.0))
sketch12.addConstraint(Sketcher.Constraint("DistanceX", 0, 3, -1, 1, 86.0))
sketch12.addConstraint(Sketcher.Constraint("DistanceX", 1, 3, -1, 1, 10.0))
sketch12.addConstraint(Sketcher.Constraint("DistanceY", 0, 3, -1, 1, 7.25))
pocket8 = body2.newObject("PartDesign::Pocket", "Pocket007")
pocket8.Profile = sketch12
pocket8.Length = 1

sketch13 = body2.newObject("Sketcher::SketchObject", "Sketch012")
sketch13.AttachmentSupport = (doc.getObject("XY_Plane001"), [""])
sketch13.MapMode = "FlatFace"
sketch13.AttachmentOffset = App.Placement(Vector(0, 0, -1.75), App.Rotation())
sketch13.addGeometry(Part.Circle(Vector(67.1, -81.3, 0), Vector(0, 0, 1), 1.5), False)
sketch13.addGeometry(Part.Circle(Vector(18.1, -81.3, 0), Vector(0, 0, 1), 1.5), False)
sketch13.addGeometry(Part.Circle(Vector(67.1, -23.3, 0), Vector(0, 0, 1), 1.5), False)
sketch13.addGeometry(Part.Circle(Vector(18.1, -23.3, 0), Vector(0, 0, 1), 1.5), False)
sketch13.addConstraint(Sketcher.Constraint("Equal", 0, 1))
sketch13.addConstraint(Sketcher.Constraint("Equal", 1, 2))
sketch13.addConstraint(Sketcher.Constraint("Equal", 2, 3))
sketch13.addConstraint(Sketcher.Constraint("Horizontal", 0, 3, 1, 3))
sketch13.addConstraint(Sketcher.Constraint("Horizontal", 2, 3, 3, 3))
sketch13.addConstraint(Sketcher.Constraint("Vertical", 0, 3, 2, 3))
sketch13.addConstraint(Sketcher.Constraint("Vertical", 1, 3, 3, 3))
sketch13.addConstraint(Sketcher.Constraint("Diameter", 0, 3.0))
sketch13.addConstraint(Sketcher.Constraint("DistanceY", 0, 3, 2, 3, 58.0))
sketch13.addConstraint(Sketcher.Constraint("DistanceY", 0, 3, -1, 1, 81.3))
sketch13.addConstraint(Sketcher.Constraint("DistanceX", 1, 3, 0, 3, 48.99))
sketch13.addConstraint(Sketcher.Constraint("DistanceX", -1, 1, 0, 3, 67.135))
pocket9 = body2.newObject("PartDesign::Pocket", "Pocket008")
pocket9.Profile = sketch13
pocket9.Length = 2
doc.recompute()

fillet = body2.newObject("PartDesign::Fillet", "Fillet")
fillet.Base = (pocket9, edges_at(pocket9, [
    (16.21, -83.8, -2.75),
    (16.21, -78.8, -2.75),
    (16.21, -25.8, -2.75),
    (69.2, -83.8, -2.75),
    (69.2, -78.8, -2.75),
    (69.2, -25.8, -2.75),
    (16.21, -20.8, -2.75),
    (69.2, -20.8, -2.75),
    (16.21, -2, -2.75),
    (69.2, -2, -2.75),
    (16.21, -100, -2.75),
    (69.2, -100, -2.75),
]))
fillet.Radius = 1.95
doc.recompute()

fillet2 = body2.newObject("PartDesign::Fillet", "Fillet001")
fillet2.Base = (fillet, edges_at(fillet, [
    (14.25, -50, -11.75),
    (12.25, -50, -11.75),
    (12.25, -50, 4.25),
    (14.25, -50, 4.25),
    (86.75, -50, -11.75),
    (84.75, -50, -11.75),
    (94.25, -50, -3.75),
    (94.25, -50, -1.75),
]))
fillet2.Radius = 0.9

doc.recompute()
